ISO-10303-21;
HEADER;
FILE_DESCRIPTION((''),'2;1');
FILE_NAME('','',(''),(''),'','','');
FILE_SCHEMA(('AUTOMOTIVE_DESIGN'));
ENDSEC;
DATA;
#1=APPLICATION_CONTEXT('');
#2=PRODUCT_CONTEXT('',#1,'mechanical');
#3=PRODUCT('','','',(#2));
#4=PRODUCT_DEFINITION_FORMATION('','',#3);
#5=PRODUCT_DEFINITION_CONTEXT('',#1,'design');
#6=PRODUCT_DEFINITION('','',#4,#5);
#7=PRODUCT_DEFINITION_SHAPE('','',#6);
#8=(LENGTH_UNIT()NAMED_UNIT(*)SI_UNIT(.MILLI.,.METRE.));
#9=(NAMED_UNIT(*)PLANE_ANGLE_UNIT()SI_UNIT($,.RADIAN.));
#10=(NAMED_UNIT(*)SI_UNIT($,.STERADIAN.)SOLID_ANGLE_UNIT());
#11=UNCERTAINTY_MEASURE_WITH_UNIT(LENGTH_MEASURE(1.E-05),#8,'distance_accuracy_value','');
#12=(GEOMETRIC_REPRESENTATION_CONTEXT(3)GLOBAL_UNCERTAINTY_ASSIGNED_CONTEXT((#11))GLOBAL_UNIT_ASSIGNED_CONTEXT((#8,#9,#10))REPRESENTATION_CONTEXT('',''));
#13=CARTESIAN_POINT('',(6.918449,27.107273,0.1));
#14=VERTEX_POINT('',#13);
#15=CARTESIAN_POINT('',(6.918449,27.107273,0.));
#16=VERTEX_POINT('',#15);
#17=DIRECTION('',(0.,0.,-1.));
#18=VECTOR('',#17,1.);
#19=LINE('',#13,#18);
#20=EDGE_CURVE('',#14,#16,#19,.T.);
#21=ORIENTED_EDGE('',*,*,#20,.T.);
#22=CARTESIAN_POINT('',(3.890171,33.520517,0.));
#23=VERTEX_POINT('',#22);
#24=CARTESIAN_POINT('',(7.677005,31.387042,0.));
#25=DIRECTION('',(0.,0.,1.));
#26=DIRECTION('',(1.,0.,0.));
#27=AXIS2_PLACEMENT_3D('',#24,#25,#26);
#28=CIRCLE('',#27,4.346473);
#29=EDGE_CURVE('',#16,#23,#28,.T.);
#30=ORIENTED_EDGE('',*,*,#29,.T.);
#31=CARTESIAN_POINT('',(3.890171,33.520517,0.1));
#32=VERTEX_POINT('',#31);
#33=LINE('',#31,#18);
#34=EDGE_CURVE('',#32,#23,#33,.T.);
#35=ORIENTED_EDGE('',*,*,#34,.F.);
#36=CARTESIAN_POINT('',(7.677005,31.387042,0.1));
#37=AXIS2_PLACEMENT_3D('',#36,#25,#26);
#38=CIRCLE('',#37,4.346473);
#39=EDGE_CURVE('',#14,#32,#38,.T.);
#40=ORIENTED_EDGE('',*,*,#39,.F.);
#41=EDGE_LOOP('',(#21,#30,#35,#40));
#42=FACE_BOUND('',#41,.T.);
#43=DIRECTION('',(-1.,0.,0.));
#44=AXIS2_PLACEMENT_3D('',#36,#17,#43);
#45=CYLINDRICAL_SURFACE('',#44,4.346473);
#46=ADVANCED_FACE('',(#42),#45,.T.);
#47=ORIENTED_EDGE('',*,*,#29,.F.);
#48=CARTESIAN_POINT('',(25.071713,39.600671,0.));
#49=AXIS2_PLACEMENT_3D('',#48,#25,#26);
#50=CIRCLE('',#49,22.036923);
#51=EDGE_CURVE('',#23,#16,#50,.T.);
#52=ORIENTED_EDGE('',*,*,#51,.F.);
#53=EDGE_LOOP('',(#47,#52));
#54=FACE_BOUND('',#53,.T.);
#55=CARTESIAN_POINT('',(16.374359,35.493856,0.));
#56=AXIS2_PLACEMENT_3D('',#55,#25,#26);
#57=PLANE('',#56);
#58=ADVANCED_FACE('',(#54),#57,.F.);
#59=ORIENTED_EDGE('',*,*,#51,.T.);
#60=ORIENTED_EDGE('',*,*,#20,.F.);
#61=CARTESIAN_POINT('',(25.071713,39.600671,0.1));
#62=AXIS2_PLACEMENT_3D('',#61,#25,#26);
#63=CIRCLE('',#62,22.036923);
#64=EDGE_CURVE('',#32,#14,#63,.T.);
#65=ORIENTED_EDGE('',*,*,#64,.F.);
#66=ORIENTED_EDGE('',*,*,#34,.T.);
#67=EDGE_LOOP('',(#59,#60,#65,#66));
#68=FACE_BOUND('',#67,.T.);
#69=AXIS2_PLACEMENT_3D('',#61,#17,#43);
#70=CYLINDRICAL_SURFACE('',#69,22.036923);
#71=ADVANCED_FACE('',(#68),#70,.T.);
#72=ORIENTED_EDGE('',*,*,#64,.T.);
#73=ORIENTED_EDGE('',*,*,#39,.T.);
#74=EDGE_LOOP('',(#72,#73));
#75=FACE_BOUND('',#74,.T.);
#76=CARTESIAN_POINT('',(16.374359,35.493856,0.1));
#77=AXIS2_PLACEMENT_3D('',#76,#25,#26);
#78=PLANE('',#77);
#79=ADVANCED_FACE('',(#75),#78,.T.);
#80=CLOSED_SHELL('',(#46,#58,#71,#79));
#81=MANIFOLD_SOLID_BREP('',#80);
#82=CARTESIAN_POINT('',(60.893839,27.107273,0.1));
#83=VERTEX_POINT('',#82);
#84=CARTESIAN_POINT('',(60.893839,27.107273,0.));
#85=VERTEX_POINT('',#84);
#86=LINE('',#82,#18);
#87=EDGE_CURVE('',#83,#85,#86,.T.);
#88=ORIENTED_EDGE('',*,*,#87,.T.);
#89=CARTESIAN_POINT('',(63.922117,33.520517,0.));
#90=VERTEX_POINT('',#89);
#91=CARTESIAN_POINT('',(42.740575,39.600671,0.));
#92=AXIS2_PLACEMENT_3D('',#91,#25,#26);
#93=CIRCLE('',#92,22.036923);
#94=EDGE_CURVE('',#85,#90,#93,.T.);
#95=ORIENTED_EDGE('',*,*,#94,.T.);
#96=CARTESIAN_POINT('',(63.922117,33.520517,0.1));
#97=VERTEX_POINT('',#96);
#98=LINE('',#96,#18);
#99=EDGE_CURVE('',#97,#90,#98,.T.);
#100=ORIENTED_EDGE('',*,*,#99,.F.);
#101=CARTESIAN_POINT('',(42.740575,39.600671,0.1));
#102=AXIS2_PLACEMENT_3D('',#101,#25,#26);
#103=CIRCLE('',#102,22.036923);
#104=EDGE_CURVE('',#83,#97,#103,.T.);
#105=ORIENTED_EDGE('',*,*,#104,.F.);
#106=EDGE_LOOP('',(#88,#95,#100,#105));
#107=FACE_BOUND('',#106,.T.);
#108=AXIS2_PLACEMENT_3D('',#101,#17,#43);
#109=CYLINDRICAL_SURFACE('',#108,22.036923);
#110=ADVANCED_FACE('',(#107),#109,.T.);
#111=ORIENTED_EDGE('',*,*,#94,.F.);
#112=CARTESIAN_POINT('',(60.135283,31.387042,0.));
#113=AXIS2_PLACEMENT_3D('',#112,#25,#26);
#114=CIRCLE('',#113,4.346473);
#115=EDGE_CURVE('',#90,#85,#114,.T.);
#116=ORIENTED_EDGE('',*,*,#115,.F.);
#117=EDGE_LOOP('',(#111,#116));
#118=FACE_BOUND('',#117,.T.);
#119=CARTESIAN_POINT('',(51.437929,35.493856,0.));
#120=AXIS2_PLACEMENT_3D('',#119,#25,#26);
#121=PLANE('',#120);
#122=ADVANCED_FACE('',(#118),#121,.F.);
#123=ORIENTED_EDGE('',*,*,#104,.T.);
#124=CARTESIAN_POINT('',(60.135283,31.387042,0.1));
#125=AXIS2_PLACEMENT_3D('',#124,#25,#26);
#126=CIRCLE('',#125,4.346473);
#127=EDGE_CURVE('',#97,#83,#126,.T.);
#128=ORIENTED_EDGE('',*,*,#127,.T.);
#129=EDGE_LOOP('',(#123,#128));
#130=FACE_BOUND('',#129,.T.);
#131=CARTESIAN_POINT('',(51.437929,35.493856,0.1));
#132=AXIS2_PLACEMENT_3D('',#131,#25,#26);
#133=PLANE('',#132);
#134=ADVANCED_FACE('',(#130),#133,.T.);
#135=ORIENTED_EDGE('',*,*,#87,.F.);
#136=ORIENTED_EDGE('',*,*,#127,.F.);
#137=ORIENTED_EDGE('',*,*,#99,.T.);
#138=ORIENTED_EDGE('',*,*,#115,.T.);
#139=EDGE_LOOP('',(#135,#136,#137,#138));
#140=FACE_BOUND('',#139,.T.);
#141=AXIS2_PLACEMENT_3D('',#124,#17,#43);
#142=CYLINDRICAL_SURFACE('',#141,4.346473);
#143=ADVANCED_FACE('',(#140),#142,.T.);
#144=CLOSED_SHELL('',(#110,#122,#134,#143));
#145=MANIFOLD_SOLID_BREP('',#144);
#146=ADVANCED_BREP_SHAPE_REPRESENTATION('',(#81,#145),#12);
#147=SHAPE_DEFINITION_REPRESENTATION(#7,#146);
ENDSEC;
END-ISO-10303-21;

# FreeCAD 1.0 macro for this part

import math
import FreeCAD as App
import Part
import Sketcher

doc = App.newDocument("Part")
body = doc.addObject("PartDesign::Body", "Body")

# Sketch on XY plane
sketch1 = body.newObject("Sketcher::SketchObject", "Sketch")
sketch1.AttachmentSupport = (doc.getObject("XY_Plane"), [""])
sketch1.MapMode = "FlatFace"
sketch1.addGeometry(Part.ArcOfCircle(Part.Circle(App.Vector(25.1, 39.6, 0), App.Vector(0, 0, 1), 22), math.radians(-163.98), math.radians(-145.46)), False)
sketch1.addGeometry(Part.ArcOfCircle(Part.Circle(App.Vector(7.7, 31.4, 0), App.Vector(0, 0, 1), 4.3), math.radians(-100), math.radians(151)), False)
sketch1.addConstraint(Sketcher.Constraint("Coincident", 0, 1, 1, 2))
sketch1.addConstraint(Sketcher.Constraint("Coincident", 1, 1, 0, 2))
sketch1.addConstraint(Sketcher.Constraint("Radius", 0, 22.036923))
sketch1.addConstraint(Sketcher.Constraint("Radius", 1, 4.346473))
sketch1.addConstraint(Sketcher.Constraint("DistanceY", -1, 1, 0, 3, 39.600671))
sketch1.addConstraint(Sketcher.Constraint("DistanceY", -1, 1, 1, 3, 31.387042))
sketch1.addConstraint(Sketcher.Constraint("DistanceX", -1, 1, 0, 1, 3.890171))
sketch1.addConstraint(Sketcher.Constraint("DistanceX", -1, 1, 1, 1, 6.918449))
pad1 = body.newObject("PartDesign::Pad", "Pad")
pad1.Profile = sketch1
pad1.Length = 0.1
body2 = doc.addObject("PartDesign::Body", "Body001")

# Sketch on XY plane
sketch2 = body2.newObject("Sketcher::SketchObject", "Sketch001")
sketch2.AttachmentSupport = (doc.getObject("XY_Plane001"), [""])
sketch2.MapMode = "FlatFace"
sketch2.addGeometry(Part.ArcOfCircle(Part.Circle(App.Vector(42.7, 39.6, 0), App.Vector(0, 0, 1), 22), math.radians(-34.54), math.radians(-16.02)), False)
sketch2.addGeometry(Part.ArcOfCircle(Part.Circle(App.Vector(60.1, 31.4, 0), App.Vector(0, 0, 1), 4.3), math.radians(29), math.radians(280)), False)
sketch2.addConstraint(Sketcher.Constraint("Coincident", 0, 1, 1, 2))
sketch2.addConstraint(Sketcher.Constraint("Coincident", 1, 1, 0, 2))
sketch2.addConstraint(Sketcher.Constraint("Radius", 0, 22.036923))
sketch2.addConstraint(Sketcher.Constraint("Radius", 1, 4.346473))
sketch2.addConstraint(Sketcher.Constraint("DistanceY", -1, 1, 0, 3, 39.600671))
sketch2.addConstraint(Sketcher.Constraint("DistanceY", -1, 1, 1, 3, 31.387042))
sketch2.addConstraint(Sketcher.Constraint("DistanceX", -1, 1, 0, 1, 60.893839))
sketch2.addConstraint(Sketcher.Constraint("DistanceY", 0, 1, 1, 3, 4.279769))
pad2 = body2.newObject("PartDesign::Pad", "Pad001")
pad2.Profile = sketch2
pad2.Length = 0.1

doc.recompute()
